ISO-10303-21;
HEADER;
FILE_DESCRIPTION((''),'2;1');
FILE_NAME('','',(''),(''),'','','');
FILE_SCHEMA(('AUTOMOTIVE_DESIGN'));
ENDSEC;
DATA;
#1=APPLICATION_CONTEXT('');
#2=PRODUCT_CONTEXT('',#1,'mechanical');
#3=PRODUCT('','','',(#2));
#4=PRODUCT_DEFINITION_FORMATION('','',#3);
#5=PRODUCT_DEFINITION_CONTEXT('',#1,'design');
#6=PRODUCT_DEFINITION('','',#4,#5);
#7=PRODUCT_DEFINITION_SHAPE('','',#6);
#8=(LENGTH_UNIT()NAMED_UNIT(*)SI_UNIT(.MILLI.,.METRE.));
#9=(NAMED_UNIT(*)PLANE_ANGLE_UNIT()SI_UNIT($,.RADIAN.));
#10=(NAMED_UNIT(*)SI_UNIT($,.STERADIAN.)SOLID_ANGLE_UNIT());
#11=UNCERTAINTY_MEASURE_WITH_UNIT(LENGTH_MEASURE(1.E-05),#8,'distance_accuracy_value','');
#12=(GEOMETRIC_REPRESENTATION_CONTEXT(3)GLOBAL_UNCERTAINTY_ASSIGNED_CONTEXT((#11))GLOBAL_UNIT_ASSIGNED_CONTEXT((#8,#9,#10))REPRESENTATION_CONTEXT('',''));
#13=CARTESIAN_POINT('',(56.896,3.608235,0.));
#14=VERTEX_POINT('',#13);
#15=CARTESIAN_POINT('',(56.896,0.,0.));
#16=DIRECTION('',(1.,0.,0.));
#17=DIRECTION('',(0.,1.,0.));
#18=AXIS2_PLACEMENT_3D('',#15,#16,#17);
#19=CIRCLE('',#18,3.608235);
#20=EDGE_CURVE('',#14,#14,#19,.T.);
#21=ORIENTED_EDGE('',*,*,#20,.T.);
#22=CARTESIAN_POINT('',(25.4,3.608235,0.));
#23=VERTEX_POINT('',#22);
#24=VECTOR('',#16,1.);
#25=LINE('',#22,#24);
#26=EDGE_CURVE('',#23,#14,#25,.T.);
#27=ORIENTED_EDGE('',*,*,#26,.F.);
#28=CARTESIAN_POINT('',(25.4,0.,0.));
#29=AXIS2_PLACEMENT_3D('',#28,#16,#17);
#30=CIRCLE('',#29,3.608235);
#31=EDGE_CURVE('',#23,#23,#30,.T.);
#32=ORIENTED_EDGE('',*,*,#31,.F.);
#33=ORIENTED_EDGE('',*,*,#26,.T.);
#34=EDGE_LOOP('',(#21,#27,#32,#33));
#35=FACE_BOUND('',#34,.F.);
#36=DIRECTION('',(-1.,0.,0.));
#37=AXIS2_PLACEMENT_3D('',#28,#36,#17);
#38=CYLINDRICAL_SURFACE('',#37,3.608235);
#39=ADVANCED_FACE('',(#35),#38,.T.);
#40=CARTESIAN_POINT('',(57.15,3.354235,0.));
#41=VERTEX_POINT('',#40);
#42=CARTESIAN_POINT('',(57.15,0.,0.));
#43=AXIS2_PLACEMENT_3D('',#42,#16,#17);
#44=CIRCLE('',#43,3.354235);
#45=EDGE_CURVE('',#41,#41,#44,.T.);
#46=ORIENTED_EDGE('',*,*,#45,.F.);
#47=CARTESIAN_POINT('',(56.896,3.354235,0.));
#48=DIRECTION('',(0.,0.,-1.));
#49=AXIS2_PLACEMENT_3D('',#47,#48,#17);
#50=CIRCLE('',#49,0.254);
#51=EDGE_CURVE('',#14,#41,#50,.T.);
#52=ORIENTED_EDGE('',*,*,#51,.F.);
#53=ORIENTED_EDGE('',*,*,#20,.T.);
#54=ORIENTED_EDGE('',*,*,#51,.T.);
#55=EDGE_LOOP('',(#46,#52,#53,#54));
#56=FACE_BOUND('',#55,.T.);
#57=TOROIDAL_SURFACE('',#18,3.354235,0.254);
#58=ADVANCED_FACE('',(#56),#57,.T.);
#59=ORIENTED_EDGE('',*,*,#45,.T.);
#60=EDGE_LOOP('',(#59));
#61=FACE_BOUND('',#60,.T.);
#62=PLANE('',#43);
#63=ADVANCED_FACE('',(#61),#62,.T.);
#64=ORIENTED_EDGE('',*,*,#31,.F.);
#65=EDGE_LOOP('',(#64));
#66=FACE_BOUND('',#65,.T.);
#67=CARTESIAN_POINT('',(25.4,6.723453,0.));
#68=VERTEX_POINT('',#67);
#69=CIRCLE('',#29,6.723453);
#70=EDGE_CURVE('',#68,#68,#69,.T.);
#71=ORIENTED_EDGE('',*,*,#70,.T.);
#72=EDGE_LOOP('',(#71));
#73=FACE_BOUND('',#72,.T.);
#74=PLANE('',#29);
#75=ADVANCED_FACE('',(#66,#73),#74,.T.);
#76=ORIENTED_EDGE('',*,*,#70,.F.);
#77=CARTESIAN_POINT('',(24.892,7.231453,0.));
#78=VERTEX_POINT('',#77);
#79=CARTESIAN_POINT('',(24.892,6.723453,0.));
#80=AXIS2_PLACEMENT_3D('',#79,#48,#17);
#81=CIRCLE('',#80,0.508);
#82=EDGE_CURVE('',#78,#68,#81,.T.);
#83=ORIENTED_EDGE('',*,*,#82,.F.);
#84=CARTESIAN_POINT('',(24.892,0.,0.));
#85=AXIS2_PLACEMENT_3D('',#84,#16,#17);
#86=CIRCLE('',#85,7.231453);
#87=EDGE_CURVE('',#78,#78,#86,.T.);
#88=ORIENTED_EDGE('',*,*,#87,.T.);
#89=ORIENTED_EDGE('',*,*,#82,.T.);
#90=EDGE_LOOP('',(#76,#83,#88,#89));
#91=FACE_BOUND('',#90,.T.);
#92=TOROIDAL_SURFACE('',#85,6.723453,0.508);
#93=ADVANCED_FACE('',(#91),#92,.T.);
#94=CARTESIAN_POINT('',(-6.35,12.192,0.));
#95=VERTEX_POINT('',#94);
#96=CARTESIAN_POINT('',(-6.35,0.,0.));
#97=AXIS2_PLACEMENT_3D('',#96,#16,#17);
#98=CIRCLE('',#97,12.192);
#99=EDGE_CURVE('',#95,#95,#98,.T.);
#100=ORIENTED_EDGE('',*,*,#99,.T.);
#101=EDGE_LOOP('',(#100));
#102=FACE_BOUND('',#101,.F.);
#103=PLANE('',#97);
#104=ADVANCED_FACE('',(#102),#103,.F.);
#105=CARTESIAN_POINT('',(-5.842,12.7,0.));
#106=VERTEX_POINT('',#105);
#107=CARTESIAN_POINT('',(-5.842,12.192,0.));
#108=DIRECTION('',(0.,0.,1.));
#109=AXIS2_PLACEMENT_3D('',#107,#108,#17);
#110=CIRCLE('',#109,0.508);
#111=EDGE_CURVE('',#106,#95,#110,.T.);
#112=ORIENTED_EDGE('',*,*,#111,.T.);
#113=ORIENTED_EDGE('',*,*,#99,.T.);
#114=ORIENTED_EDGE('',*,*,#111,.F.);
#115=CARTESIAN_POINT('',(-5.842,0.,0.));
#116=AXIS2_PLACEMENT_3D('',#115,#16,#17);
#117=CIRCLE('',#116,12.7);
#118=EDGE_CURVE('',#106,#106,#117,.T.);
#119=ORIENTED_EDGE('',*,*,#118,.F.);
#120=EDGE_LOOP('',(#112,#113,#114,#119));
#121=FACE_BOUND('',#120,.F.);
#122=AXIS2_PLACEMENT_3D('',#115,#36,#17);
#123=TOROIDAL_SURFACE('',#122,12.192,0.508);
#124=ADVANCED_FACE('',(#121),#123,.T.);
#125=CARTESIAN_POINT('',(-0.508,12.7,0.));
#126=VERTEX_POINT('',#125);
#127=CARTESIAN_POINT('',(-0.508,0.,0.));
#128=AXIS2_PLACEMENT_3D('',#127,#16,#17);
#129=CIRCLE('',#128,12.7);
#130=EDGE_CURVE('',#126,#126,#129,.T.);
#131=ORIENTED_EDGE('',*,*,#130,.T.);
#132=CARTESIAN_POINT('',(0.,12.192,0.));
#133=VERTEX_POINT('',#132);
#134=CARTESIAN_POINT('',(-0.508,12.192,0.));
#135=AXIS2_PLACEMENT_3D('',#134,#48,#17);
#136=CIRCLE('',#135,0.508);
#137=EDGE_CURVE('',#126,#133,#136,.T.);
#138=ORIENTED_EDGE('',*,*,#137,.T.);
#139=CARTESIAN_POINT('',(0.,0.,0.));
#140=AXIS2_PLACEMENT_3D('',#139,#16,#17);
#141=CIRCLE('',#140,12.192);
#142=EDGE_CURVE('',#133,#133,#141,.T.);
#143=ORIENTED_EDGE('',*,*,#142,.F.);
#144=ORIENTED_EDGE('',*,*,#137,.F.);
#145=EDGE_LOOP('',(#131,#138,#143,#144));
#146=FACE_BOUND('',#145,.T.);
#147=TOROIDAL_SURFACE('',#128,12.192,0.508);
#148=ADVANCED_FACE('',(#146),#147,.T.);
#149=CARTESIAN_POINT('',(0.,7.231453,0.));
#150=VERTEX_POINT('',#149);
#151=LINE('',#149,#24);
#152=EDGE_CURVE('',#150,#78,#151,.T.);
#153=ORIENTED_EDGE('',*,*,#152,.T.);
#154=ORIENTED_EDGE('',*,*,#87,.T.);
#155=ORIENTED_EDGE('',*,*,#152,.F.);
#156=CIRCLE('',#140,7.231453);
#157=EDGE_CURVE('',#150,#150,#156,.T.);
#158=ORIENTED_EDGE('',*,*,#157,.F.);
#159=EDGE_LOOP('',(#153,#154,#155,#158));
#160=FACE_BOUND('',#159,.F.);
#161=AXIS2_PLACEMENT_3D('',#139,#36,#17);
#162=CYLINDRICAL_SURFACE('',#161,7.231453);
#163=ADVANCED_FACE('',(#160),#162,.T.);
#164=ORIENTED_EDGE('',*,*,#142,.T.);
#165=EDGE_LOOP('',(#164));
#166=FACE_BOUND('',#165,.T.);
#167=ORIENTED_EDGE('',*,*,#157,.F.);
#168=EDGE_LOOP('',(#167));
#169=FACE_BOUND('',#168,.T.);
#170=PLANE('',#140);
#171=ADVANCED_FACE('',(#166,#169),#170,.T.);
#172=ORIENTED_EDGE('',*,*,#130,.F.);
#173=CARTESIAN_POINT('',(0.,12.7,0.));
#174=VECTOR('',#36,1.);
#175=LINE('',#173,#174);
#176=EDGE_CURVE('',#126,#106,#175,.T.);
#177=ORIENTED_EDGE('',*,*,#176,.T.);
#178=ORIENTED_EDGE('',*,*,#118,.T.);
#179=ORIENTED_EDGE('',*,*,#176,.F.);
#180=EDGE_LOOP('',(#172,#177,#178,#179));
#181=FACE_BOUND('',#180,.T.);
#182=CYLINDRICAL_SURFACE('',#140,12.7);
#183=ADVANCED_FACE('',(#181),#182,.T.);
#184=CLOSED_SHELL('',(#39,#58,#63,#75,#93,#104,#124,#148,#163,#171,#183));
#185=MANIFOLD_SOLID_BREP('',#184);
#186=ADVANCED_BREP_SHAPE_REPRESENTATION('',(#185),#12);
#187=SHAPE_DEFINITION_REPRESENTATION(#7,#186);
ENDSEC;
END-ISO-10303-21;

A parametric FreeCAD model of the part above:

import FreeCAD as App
import Part
import Sketcher
from FreeCAD import Vector
Q = App.Units.Quantity


def edges_at(feature, points):
    """Names of the edges that pass closest to the given points."""
    edges = feature.Shape.Edges
    near = lambda p: min(range(len(edges)), key=lambda i: edges[i].distToShape(Part.Vertex(*p))[0])
    return sorted({f"Edge{near(p) + 1}" for p in points})

doc = App.newDocument("Part")
body = doc.addObject("PartDesign::Body", "Body")

# Sketch on YZ plane
sketch1 = body.newObject("Sketcher::SketchObject", "Sketch")
sketch1.AttachmentSupport = (doc.getObject("YZ_Plane"), [""])
sketch1.MapMode = "FlatFace"
sketch1.addGeometry(Part.Circle(Vector(0, 0, 0), Vector(0, 0, 1), 13), False)
sketch1.addConstraint(Sketcher.Constraint("Coincident", 0, 3, -1, 1))
sketch1.addConstraint(Sketcher.Constraint("Diameter", 0, Q("1 in")))
pad1 = body.newObject("PartDesign::Pad", "Pad")
pad1.Profile = sketch1
pad1.Length = Q("0.25 in")
pad1.Reversed = True

# Sketch on YZ plane
sketch2 = body.newObject("Sketcher::SketchObject", "Sketch001")
sketch2.AttachmentSupport = (doc.getObject("YZ_Plane"), [""])
sketch2.MapMode = "FlatFace"
sketch2.addGeometry(Part.Circle(Vector(0, 0, 0), Vector(0, 0, 1), 7), False)
sketch2.addConstraint(Sketcher.Constraint("Coincident", 0, 3, -1, 1))
sketch2.addConstraint(Sketcher.Constraint("Diameter", 0, Q("14.462906 mm")))
pad2 = body.newObject("PartDesign::Pad", "Pad001")
pad2.Profile = sketch2
pad2.Length = Q("1 in")

# Sketch on YZ plane
sketch3 = body.newObject("Sketcher::SketchObject", "Sketch002")
sketch3.AttachmentSupport = (doc.getObject("YZ_Plane"), [""])
sketch3.MapMode = "FlatFace"
sketch3.AttachmentOffset = App.Placement(Vector(0, 0, 1 * 25.4), App.Rotation())
sketch3.addGeometry(Part.Circle(Vector(0, 0, 0), Vector(0, 0, 1), 3.6), False)
sketch3.addConstraint(Sketcher.Constraint("Coincident", 0, 3, -1, 1))
sketch3.addConstraint(Sketcher.Constraint("Diameter", 0, Q("7.21647 mm")))
pad3 = body.newObject("PartDesign::Pad", "Pad002")
pad3.Profile = sketch3
pad3.Length = Q("1.25 in")
doc.recompute()

fillet = body.newObject("PartDesign::Fillet", "Fillet")
fillet.Base = (pad3, edges_at(pad3, [(-6.35, -12.7, 0)]))
fillet.Radius = Q("0.02 in")
doc.recompute()

fillet2 = body.newObject("PartDesign::Fillet", "Fillet001")
fillet2.Base = (fillet, edges_at(fillet, [(0, -12.7, 0)]))
fillet2.Radius = Q("0.02 in")
doc.recompute()

fillet3 = body.newObject("PartDesign::Fillet", "Fillet002")
fillet3.Base = (fillet2, edges_at(fillet2, [(25.4, -7.231, 0)]))
fillet3.Radius = Q("0.02 in")
doc.recompute()

fillet4 = body.newObject("PartDesign::Fillet", "Fillet003")
fillet4.Base = (fillet3, edges_at(fillet3, [(57.15, -3.608, 0)]))
fillet4.Radius = Q("0.01 in")

doc.recompute()
